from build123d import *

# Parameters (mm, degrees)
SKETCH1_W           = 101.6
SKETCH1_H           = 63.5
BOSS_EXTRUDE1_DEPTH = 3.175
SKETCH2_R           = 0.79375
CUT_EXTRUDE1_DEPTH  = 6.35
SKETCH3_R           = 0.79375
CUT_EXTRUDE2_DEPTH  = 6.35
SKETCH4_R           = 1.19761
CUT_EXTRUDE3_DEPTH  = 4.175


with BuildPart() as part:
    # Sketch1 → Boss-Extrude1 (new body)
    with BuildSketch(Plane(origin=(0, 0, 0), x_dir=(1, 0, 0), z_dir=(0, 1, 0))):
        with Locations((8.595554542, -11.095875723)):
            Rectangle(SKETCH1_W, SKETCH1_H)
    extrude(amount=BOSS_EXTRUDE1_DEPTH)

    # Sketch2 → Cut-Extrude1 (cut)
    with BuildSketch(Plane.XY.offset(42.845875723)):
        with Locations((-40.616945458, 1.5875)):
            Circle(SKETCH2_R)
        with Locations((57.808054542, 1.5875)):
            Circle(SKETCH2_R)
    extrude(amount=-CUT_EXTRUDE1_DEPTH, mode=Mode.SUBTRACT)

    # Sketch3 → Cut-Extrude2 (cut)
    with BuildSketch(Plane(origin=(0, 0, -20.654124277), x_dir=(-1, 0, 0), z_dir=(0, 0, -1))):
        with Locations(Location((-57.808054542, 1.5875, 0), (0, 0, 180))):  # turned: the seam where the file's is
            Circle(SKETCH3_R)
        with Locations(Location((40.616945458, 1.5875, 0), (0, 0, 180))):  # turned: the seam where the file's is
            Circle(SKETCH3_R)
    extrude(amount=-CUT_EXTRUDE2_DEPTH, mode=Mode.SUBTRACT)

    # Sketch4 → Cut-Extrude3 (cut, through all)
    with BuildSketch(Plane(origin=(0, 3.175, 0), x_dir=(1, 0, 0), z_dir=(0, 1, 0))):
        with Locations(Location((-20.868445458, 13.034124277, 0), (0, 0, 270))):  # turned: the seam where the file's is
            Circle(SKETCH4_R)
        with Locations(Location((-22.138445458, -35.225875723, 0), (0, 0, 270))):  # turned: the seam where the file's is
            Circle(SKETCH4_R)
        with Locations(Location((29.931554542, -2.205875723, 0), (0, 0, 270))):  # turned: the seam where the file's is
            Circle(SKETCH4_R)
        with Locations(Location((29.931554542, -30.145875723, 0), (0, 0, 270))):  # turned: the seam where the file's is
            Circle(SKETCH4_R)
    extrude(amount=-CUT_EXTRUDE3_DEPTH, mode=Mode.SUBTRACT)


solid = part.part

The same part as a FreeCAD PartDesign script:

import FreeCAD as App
import Part
import Sketcher
Q = App.Units.Quantity

doc = App.newDocument("Part")
params = doc.addObject("Spreadsheet::Sheet", "Params")
for row, (alias, value) in enumerate([
    ("sketch1_width", "4 in"),
    ("sketch1_height", "2.5 in"),
    ("pad1_length", "0.125 in"),
    ("sketch2_diameter", "0.0625 in"),
    ("pocket1_length", "0.25 in"),
    ("sketch3_diameter", "0.0625 in"),
    ("pocket2_length", "0.25 in"),
], start=1):
    params.set(f"A{row}", alias)
    params.set(f"B{row}", "=" + value)
    params.setAlias(f"B{row}", alias)

body = doc.addObject("PartDesign::Body", "Body")

sketch1 = body.newObject("Sketcher::SketchObject", "Sketch")
sketch1.AttachmentSupport = (doc.getObject("XZ_Plane"), [""])
sketch1.MapMode = "FlatFace"
sketch1.addGeometry(Part.LineSegment(App.Vector(-42, -21, 0), App.Vector(-42, 43, 0)), False)
sketch1.addGeometry(Part.LineSegment(App.Vector(-42, 43, 0), App.Vector(59, 43, 0)), False)
sketch1.addGeometry(Part.LineSegment(App.Vector(59, 43, 0), App.Vector(59, -21, 0)), False)
sketch1.addGeometry(Part.LineSegment(App.Vector(59, -21, 0), App.Vector(-42, -21, 0)), False)
sketch1.addConstraint(Sketcher.Constraint("Coincident", 0, 2, 1, 1))
sketch1.addConstraint(Sketcher.Constraint("Coincident", 1, 2, 2, 1))
sketch1.addConstraint(Sketcher.Constraint("Coincident", 2, 2, 3, 1))
sketch1.addConstraint(Sketcher.Constraint("Coincident", 3, 2, 0, 1))
sketch1.addConstraint(Sketcher.Constraint("Vertical", 0))
sketch1.addConstraint(Sketcher.Constraint("Horizontal", 1))
sketch1.addConstraint(Sketcher.Constraint("Vertical", 2))
sketch1.addConstraint(Sketcher.Constraint("Horizontal", 3))
sketch1.addConstraint(Sketcher.Constraint("DistanceX", 1, 1, 1, 2, Q("4 in")))
sketch1.addConstraint(Sketcher.Constraint("DistanceY", 0, 1, 0, 2, Q("2.5 in")))
sketch1.addConstraint(Sketcher.Constraint("DistanceX", 0, 2, -1, 1, 42.204445))
sketch1.addConstraint(Sketcher.Constraint("DistanceY", -1, 1, 0, 2, 42.845876))
sketch1.setExpression("Constraints[8]", "Params.sketch1_width")
sketch1.setExpression("Constraints[9]", "Params.sketch1_height")
pad1 = body.newObject("PartDesign::Pad", "Pad")
pad1.Profile = sketch1
pad1.setExpression("Length", "Params.pad1_length")
pad1.Reversed = True

sketch2 = body.newObject("Sketcher::SketchObject", "Sketch001")
sketch2.AttachmentSupport = (doc.getObject("XY_Plane"), [""])
sketch2.MapMode = "FlatFace"
sketch2.AttachmentOffset = App.Placement(App.Vector(0, 0, 42.845876), App.Rotation())
sketch2.addGeometry(Part.Circle(App.Vector(-40.6, 1.6, 0), App.Vector(0, 0, 1), 0.8), False)
sketch2.addGeometry(Part.Circle(App.Vector(57.8, 1.6, 0), App.Vector(0, 0, 1), 0.8), False)
sketch2.addConstraint(Sketcher.Constraint("Equal", 0, 1))
sketch2.addConstraint(Sketcher.Constraint("Horizontal", 0, 3, 1, 3))
sketch2.addConstraint(Sketcher.Constraint("Diameter", 0, Q("0.0625 in")))
sketch2.addConstraint(Sketcher.Constraint("DistanceY", -1, 1, 0, 3, Q("0.0625 in")))
sketch2.addConstraint(Sketcher.Constraint("DistanceX", 0, 3, 1, 3, Q("3.875 in")))
sketch2.addConstraint(Sketcher.Constraint("DistanceX", 0, 3, -1, 1, 40.616945))
sketch2.setExpression("Constraints[2]", "Params.sketch2_diameter")
pocket1 = body.newObject("PartDesign::Pocket", "Pocket")
pocket1.Profile = sketch2
pocket1.setExpression("Length", "Params.pocket1_length")

sketch3 = body.newObject("Sketcher::SketchObject", "Sketch002")
sketch3.AttachmentSupport = (doc.getObject("XY_Plane"), [""])
sketch3.MapMode = "FlatFace"
sketch3.AttachmentOffset = App.Placement(App.Vector(0, 0, -20.654124), App.Rotation())
sketch3.addGeometry(Part.Circle(App.Vector(57.8, 1.6, 0), App.Vector(0, 0, 1), 0.8), False)
sketch3.addGeometry(Part.Circle(App.Vector(-40.6, 1.6, 0), App.Vector(0, 0, 1), 0.8), False)
sketch3.addConstraint(Sketcher.Constraint("Equal", 0, 1))
sketch3.addConstraint(Sketcher.Constraint("Horizontal", 0, 3, 1, 3))
sketch3.addConstraint(Sketcher.Constraint("Diameter", 0, Q("0.0625 in")))
sketch3.addConstraint(Sketcher.Constraint("DistanceY", -1, 1, 0, 3, Q("0.0625 in")))
sketch3.addConstraint(Sketcher.Constraint("DistanceX", 1, 3, 0, 3, Q("3.875 in")))
sketch3.addConstraint(Sketcher.Constraint("DistanceX", -1, 1, 0, 3, 57.808055))
sketch3.setExpression("Constraints[2]", "Params.sketch3_diameter")
pocket2 = body.newObject("PartDesign::Pocket", "Pocket001")
pocket2.Profile = sketch3
pocket2.setExpression("Length", "Params.pocket2_length")
pocket2.Reversed = True

sketch4 = body.newObject("Sketcher::SketchObject", "Sketch003")
sketch4.AttachmentSupport = (doc.getObject("XZ_Plane"), [""])
sketch4.MapMode = "FlatFace"
sketch4.AttachmentOffset = App.Placement(App.Vector(0, 0, -0.125 * 25.4), App.Rotation())
sketch4.addGeometry(Part.Circle(App.Vector(-20.9, -13, 0), App.Vector(0, 0, 1), 1.2), False)
sketch4.addGeometry(Part.Circle(App.Vector(-22.1, 35.2, 0), App.Vector(0, 0, 1), 1.2), False)
sketch4.addGeometry(Part.Circle(App.Vector(29.9, 2.2, 0), App.Vector(0, 0, 1), 1.2), False)
sketch4.addGeometry(Part.Circle(App.Vector(29.9, 30.1, 0), App.Vector(0, 0, 1), 1.2), False)
sketch4.addConstraint(Sketcher.Constraint("Equal", 0, 1))
sketch4.addConstraint(Sketcher.Constraint("Equal", 1, 2))
sketch4.addConstraint(Sketcher.Constraint("Equal", 2, 3))
sketch4.addConstraint(Sketcher.Constraint("Vertical", 2, 3, 3, 3))
sketch4.addConstraint(Sketcher.Constraint("DistanceX", 0, 3, 2, 3, Q("2 in")))
sketch4.addConstraint(Sketcher.Constraint("Diameter", 0, Q("0.0943 in")))
sketch4.addConstraint(Sketcher.Constraint("DistanceY", 0, 3, 1, 3, Q("1.9 in")))
sketch4.addConstraint(Sketcher.Constraint("DistanceY", 0, 3, 2, 3, Q("0.6 in")))
sketch4.addConstraint(Sketcher.Constraint("DistanceY", 2, 3, 3, 3, Q("1.1 in")))
sketch4.addConstraint(Sketcher.Constraint("DistanceX", 1, 3, 0, 3, Q("0.05 in")))
sketch4.addConstraint(Sketcher.Constraint("DistanceX", 0, 3, -1, 1, 20.868445))
sketch4.addConstraint(Sketcher.Constraint("DistanceY", 0, 3, -1, 1, 13.034124))
pocket3 = body.newObject("PartDesign::Pocket", "Pocket002")
pocket3.Profile = sketch4
pocket3.Type = "ThroughAll"
pocket3.Reversed = True

doc.recompute()
